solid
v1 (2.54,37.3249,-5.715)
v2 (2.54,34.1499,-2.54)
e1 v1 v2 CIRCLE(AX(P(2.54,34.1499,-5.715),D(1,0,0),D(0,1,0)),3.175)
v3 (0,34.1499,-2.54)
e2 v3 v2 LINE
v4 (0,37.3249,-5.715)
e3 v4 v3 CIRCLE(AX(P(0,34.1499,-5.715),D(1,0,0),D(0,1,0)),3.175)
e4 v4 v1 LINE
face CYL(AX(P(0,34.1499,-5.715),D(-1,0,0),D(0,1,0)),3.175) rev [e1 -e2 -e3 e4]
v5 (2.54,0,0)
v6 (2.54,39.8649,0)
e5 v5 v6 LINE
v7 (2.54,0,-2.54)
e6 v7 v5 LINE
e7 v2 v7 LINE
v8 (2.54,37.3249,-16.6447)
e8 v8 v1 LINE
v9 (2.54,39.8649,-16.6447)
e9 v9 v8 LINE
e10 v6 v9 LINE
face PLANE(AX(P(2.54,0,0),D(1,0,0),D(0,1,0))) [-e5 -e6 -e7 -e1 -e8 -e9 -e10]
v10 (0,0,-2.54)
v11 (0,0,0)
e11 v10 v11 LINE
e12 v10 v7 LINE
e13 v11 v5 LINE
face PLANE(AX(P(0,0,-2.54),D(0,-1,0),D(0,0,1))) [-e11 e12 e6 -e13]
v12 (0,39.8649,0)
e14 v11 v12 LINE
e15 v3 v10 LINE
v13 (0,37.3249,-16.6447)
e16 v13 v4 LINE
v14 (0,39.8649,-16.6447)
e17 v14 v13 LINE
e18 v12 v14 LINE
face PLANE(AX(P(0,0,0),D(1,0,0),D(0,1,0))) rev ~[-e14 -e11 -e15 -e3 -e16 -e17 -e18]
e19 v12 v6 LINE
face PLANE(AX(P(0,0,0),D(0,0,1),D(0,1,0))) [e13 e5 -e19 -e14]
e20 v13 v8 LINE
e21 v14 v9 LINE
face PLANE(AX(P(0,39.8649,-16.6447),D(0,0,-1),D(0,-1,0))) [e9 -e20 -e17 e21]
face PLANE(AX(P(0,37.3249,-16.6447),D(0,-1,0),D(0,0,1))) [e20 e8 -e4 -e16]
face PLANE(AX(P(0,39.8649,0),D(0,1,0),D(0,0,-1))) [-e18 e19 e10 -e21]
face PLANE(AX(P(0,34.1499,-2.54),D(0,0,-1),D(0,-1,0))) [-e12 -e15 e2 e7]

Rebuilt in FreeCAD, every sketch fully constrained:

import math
import FreeCAD as App
import Part
import Sketcher
from FreeCAD import Vector
Q = App.Units.Quantity

doc = App.newDocument("Part")
body = doc.addObject("PartDesign::Body", "Body")

# Sketch on YZ plane
sketch1 = body.newObject("Sketcher::SketchObject", "Sketch")
sketch1.AttachmentSupport = (doc.getObject("YZ_Plane"), [""])
sketch1.MapMode = "FlatFace"
sketch1.addGeometry(Part.LineSegment(Vector(39.8649, 0, 0), Vector(0, 0, 0)), False)
sketch1.addGeometry(Part.LineSegment(Vector(0, 0, 0), Vector(0, -2.54, 0)), False)
sketch1.addGeometry(Part.LineSegment(Vector(0, -2.54, 0), Vector(34.1499, -2.54, 0)), False)
sketch1.addGeometry(Part.ArcOfCircle(Part.Circle(Vector(34.1499, -5.715, 0), Vector(0, 0, 1), 3.175), math.radians(0), math.radians(90)), False)
sketch1.addGeometry(Part.LineSegment(Vector(37.3249, -5.715, 0), Vector(37.3249, -16.6447, 0)), False)
sketch1.addGeometry(Part.LineSegment(Vector(37.3249, -16.6447, 0), Vector(39.8649, -16.6447, 0)), False)
sketch1.addGeometry(Part.LineSegment(Vector(39.8649, -16.6447, 0), Vector(39.8649, 0, 0)), False)
sketch1.addConstraint(Sketcher.Constraint("Coincident", 0, 2, 1, 1))
sketch1.addConstraint(Sketcher.Constraint("Coincident", 1, 2, 2, 1))
sketch1.addConstraint(Sketcher.Constraint("Tangent", 2, 2, 3, 2))
sketch1.addConstraint(Sketcher.Constraint("Tangent", 3, 1, 4, 1))
sketch1.addConstraint(Sketcher.Constraint("Coincident", 4, 2, 5, 1))
sketch1.addConstraint(Sketcher.Constraint("Coincident", 5, 2, 6, 1))
sketch1.addConstraint(Sketcher.Constraint("Coincident", 6, 2, 0, 1))
sketch1.addConstraint(Sketcher.Constraint("Horizontal", 0))
sketch1.addConstraint(Sketcher.Constraint("Vertical", 1))
sketch1.addConstraint(Sketcher.Constraint("Horizontal", 2))
sketch1.addConstraint(Sketcher.Constraint("Vertical", 4))
sketch1.addConstraint(Sketcher.Constraint("Horizontal", 5))
sketch1.addConstraint(Sketcher.Constraint("Vertical", 6))
sketch1.addConstraint(Sketcher.Constraint("Coincident", 0, 2, -1, 1))
sketch1.addConstraint(Sketcher.Constraint("Equal", 5, 1))
sketch1.addConstraint(Sketcher.Constraint("DistanceX", 5, 1, 5, 2, Q("0.1 in")))
sketch1.addConstraint(Sketcher.Constraint("Radius", 3, Q("0.125 in")))
sketch1.addConstraint(Sketcher.Constraint("DistanceY", 4, 2, 4, 1, Q("0.4303 in")))
sketch1.addConstraint(Sketcher.Constraint("DistanceX", 0, 2, 0, 1, Q("1.5694882 in")))
pad1 = body.newObject("PartDesign::Pad", "Pad")
pad1.Profile = sketch1
pad1.Length = Q("0.1 in")

doc.recompute()
